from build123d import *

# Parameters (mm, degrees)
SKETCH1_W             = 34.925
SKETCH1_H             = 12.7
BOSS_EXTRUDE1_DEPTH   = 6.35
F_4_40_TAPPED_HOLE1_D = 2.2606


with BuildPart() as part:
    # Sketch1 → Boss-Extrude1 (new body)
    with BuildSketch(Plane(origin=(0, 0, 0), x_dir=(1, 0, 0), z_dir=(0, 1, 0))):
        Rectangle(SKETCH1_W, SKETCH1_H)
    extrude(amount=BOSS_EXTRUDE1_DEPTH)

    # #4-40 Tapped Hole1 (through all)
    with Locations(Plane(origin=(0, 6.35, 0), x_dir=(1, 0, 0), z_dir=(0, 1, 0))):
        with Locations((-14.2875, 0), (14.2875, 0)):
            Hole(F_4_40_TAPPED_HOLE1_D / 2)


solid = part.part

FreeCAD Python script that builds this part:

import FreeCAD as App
import Part
import Sketcher
from FreeCAD import Vector
Q = App.Units.Quantity

doc = App.newDocument("Part")
params = doc.addObject("Spreadsheet::Sheet", "Params")
for row, (alias, value) in enumerate([
    ("sketch1_height", "0.5 in"),
    ("sketch1_width", "1.375 in"),
    ("pad1_length", "0.25 in"),
    ("sketch2_diameter", "0.089 in"),
    ("hole_diameter", "0.089 in"),
], start=1):
    params.set(f"A{row}", alias)
    params.set(f"B{row}", "=" + value)
    params.setAlias(f"B{row}", alias)

body = doc.addObject("PartDesign::Body", "Body")

# Sketch on XZ plane
sketch1 = body.newObject("Sketcher::SketchObject", "Sketch")
sketch1.AttachmentSupport = (doc.getObject("XZ_Plane"), [""])
sketch1.MapMode = "FlatFace"
sketch1.addGeometry(Part.LineSegment(Vector(-17, -6, 0), Vector(-17, 6, 0)), False)
sketch1.addGeometry(Part.LineSegment(Vector(-17, 6, 0), Vector(17, 6, 0)), False)
sketch1.addGeometry(Part.LineSegment(Vector(17, 6, 0), Vector(17, -6, 0)), False)
sketch1.addGeometry(Part.LineSegment(Vector(17, -6, 0), Vector(-17, -6, 0)), False)
sketch1.addConstraint(Sketcher.Constraint("Coincident", 0, 2, 1, 1))
sketch1.addConstraint(Sketcher.Constraint("Coincident", 1, 2, 2, 1))
sketch1.addConstraint(Sketcher.Constraint("Coincident", 2, 2, 3, 1))
sketch1.addConstraint(Sketcher.Constraint("Coincident", 3, 2, 0, 1))
sketch1.addConstraint(Sketcher.Constraint("Vertical", 0))
sketch1.addConstraint(Sketcher.Constraint("Horizontal", 1))
sketch1.addConstraint(Sketcher.Constraint("Vertical", 2))
sketch1.addConstraint(Sketcher.Constraint("Horizontal", 3))
sketch1.addConstraint(Sketcher.Constraint("Symmetric", 0, 2, 2, 2, -1, 1))
sketch1.addConstraint(Sketcher.Constraint("DistanceY", 0, 1, 0, 2, Q("0.5 in")))
sketch1.addConstraint(Sketcher.Constraint("DistanceX", 1, 1, 1, 2, Q("1.375 in")))
sketch1.setExpression("Constraints[9]", "Params.sketch1_height")
sketch1.setExpression("Constraints[10]", "Params.sketch1_width")
pad1 = body.newObject("PartDesign::Pad", "Pad")
pad1.Profile = sketch1
pad1.setExpression("Length", "Params.pad1_length")
pad1.Reversed = True

# Sketch on XZ plane
sketch2 = body.newObject("Sketcher::SketchObject", "Sketch001")
sketch2.AttachmentSupport = (doc.getObject("XZ_Plane"), [""])
sketch2.MapMode = "FlatFace"
sketch2.AttachmentOffset = App.Placement(Vector(0, 0, -0.25 * 25.4), App.Rotation())
sketch2.addGeometry(Part.Circle(Vector(-14.3, 0, 0), Vector(0, 0, 1), 1.1), False)
sketch2.addGeometry(Part.Circle(Vector(14.3, 0, 0), Vector(0, 0, 1), 1.1), False)
sketch2.addConstraint(Sketcher.Constraint("Equal", 0, 1))
sketch2.addConstraint(Sketcher.Constraint("Symmetric", 0, 3, 1, 3, -1, 1))
sketch2.addConstraint(Sketcher.Constraint("PointOnObject", 0, 3, -1))
sketch2.addConstraint(Sketcher.Constraint("Diameter", 0, Q("0.089 in")))
sketch2.addConstraint(Sketcher.Constraint("DistanceX", 0, 3, -1, 1, Q("0.5625 in")))
sketch2.setExpression("Constraints[3]", "Params.sketch2_diameter")
doc.recompute()
hole = body.newObject("PartDesign::Hole", "Hole")
hole.Profile = sketch2
hole.ThreadType = "None"
hole.setExpression("Diameter", "Params.hole_diameter")
hole.DepthType = "ThroughAll"
hole.Reversed = True

doc.recompute()
